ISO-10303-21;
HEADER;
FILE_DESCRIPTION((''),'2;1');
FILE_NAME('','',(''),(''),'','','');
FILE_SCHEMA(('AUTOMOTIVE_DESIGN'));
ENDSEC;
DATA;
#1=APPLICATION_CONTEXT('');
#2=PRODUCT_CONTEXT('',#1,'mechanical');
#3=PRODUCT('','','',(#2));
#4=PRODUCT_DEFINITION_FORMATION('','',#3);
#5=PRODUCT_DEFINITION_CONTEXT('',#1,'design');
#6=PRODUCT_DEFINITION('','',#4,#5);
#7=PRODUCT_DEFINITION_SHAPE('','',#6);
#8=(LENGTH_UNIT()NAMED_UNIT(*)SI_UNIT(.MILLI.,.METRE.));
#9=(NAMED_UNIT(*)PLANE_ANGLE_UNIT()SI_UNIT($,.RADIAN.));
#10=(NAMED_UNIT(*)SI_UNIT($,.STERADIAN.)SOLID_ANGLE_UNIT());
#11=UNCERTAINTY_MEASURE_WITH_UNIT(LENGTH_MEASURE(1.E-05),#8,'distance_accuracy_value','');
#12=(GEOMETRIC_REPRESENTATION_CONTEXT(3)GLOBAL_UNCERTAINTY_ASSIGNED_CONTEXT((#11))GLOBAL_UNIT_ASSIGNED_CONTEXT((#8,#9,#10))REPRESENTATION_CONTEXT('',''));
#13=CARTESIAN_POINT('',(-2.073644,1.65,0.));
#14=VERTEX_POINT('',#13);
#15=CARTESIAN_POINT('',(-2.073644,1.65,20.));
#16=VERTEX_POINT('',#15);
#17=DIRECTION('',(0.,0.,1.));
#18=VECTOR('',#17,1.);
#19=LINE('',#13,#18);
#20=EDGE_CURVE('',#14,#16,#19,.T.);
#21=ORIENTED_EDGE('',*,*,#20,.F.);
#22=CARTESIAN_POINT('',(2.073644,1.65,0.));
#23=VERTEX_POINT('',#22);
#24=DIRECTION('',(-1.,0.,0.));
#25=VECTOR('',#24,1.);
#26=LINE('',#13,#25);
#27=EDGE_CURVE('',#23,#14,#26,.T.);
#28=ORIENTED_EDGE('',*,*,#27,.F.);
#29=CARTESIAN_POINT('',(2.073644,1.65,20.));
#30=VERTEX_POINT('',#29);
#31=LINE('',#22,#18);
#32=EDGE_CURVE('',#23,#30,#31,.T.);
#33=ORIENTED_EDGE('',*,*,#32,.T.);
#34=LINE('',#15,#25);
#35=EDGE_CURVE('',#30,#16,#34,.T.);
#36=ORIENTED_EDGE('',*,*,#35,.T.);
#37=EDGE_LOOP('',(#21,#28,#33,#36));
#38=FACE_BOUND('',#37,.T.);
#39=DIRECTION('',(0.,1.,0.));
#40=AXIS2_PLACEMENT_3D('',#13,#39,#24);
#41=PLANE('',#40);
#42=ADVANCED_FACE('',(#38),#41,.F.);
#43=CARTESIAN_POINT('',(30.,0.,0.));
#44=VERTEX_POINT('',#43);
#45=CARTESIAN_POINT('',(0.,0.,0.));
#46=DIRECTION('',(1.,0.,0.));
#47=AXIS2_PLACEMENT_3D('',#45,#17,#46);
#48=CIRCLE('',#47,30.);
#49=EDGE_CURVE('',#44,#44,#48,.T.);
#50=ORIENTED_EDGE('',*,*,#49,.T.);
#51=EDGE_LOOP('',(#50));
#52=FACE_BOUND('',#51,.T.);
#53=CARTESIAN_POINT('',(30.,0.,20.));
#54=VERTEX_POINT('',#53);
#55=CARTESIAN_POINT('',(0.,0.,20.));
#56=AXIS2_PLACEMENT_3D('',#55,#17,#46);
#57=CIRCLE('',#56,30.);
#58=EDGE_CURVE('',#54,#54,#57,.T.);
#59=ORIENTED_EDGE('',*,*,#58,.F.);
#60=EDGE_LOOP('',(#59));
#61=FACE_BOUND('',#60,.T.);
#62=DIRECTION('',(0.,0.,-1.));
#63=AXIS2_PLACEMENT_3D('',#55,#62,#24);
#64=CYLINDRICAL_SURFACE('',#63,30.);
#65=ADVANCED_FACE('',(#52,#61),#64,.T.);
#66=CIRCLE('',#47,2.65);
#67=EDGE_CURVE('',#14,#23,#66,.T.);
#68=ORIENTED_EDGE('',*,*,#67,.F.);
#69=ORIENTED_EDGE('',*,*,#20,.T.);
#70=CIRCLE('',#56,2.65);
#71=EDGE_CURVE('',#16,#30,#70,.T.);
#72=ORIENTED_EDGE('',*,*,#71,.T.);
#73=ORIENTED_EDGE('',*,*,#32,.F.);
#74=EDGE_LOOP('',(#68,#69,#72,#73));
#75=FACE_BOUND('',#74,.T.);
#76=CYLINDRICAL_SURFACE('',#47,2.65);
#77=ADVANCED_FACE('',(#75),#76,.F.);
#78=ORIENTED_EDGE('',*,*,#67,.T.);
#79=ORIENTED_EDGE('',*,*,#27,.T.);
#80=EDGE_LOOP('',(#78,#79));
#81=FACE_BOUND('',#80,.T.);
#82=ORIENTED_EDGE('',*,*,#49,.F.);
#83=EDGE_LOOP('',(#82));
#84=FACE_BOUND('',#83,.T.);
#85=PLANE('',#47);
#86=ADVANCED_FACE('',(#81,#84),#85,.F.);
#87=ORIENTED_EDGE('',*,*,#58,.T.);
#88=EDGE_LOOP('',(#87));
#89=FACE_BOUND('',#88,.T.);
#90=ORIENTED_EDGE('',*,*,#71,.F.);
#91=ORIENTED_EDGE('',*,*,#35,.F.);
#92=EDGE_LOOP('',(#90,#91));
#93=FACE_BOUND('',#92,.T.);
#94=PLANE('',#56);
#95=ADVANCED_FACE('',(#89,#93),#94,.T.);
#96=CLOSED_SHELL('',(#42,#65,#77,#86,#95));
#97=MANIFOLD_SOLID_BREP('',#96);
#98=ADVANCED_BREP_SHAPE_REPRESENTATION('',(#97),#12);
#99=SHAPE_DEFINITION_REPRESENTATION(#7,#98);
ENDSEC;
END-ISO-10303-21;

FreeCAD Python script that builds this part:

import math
import FreeCAD as App
import Part
import Sketcher

doc = App.newDocument("Part")
body = doc.addObject("PartDesign::Body", "Body")

# Sketch on XY plane
sketch1 = body.newObject("Sketcher::SketchObject", "Sketch")
sketch1.AttachmentSupport = (doc.getObject("XY_Plane"), [""])
sketch1.MapMode = "FlatFace"
sketch1.addGeometry(Part.Circle(App.Vector(0, 0, 0), App.Vector(0, 0, 1), 30), False)
sketch1.addConstraint([
    Sketcher.Constraint("Coincident", 0, 3, -1, 1),
    Sketcher.Constraint("Diameter", 0, 60.0),
])
pad1 = body.newObject("PartDesign::Pad", "Pad")
pad1.Profile = sketch1
pad1.Length = 20

# Sketch on XY plane
sketch2 = body.newObject("Sketcher::SketchObject", "Sketch001")
sketch2.AttachmentSupport = (doc.getObject("XY_Plane"), [""])
sketch2.MapMode = "FlatFace"
sketch2.AttachmentOffset = App.Placement(App.Vector(0, 0, 20), App.Rotation())
sketch2.addGeometry([
    Part.LineSegment(App.Vector(2.073644, 1.65, 0), App.Vector(-2.073644, 1.65, 0)),
    Part.ArcOfCircle(Part.Circle(App.Vector(0, 0, 0), App.Vector(0, 0, 1), 2.65), math.radians(141.490711), math.radians(398.509289)),
], False)
sketch2.addConstraint([
    Sketcher.Constraint("Coincident", 0, 1, 1, 2),
    Sketcher.Constraint("Coincident", 1, 1, 0, 2),
    Sketcher.Constraint("Horizontal", 0),
    Sketcher.Constraint("Coincident", 1, 3, -1, 1),
    Sketcher.Constraint("Radius", 1, 2.65),
    Sketcher.Constraint("DistanceY", -1, 1, 0, 1, 1.65),
])
pocket1 = body.newObject("PartDesign::Pocket", "Pocket")
pocket1.Profile = sketch2
pocket1.Type = "ThroughAll"

doc.recompute()
